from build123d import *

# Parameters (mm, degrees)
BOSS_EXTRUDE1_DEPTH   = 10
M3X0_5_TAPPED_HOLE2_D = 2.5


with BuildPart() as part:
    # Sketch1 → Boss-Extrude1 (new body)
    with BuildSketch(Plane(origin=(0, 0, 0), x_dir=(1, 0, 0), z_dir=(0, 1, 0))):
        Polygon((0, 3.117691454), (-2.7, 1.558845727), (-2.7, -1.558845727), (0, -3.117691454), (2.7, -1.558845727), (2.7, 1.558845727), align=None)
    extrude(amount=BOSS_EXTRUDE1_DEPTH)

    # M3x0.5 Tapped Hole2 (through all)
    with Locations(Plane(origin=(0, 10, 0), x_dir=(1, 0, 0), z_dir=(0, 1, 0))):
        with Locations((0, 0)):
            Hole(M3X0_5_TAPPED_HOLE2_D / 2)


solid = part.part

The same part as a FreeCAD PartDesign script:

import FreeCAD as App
import Part
import Sketcher
Q = App.Units.Quantity


def add_polygon(sketch, points):
    """Adds a closed chain of lines whose ends are joined by coincident constraints."""
    first, n = sketch.GeometryCount, len(points)
    for a, b in zip(points, points[1:] + points[:1]):
        sketch.addGeometry(Part.LineSegment(App.Vector(*a, 0), App.Vector(*b, 0)), False)
    for i in range(n):
        sketch.addConstraint(Sketcher.Constraint("Coincident", first + i, 2, first + (i + 1) % n, 1))

doc = App.newDocument("Part")
body = doc.addObject("PartDesign::Body", "Body")

# Sketch on XZ plane
sketch1 = body.newObject("Sketcher::SketchObject", "Sketch")
sketch1.AttachmentSupport = (doc.getObject("XZ_Plane"), [""])
sketch1.MapMode = "FlatFace"
add_polygon(sketch1, [(0, -3.1), (-2.7, -1.6), (-2.7, 1.6), (0, 3.1), (2.7, 1.6), (2.7, -1.6)])  # lines 0-5
sketch1.addConstraint([
    Sketcher.Constraint("Vertical", 1),
    Sketcher.Constraint("Vertical", 4),
    Sketcher.Constraint("Symmetric", 0, 2, 3, 2, -1, 1),
    Sketcher.Constraint("Symmetric", 2, 2, 5, 2, -1, 1),
    Sketcher.Constraint("PointOnObject", 2, 2, -2),
    Sketcher.Constraint("Parallel", 2, 5),
    Sketcher.Constraint("Horizontal", 1, 2, 3, 2),
    Sketcher.Constraint("Angle", 0, Q("150 deg")),
    Sketcher.Constraint("DistanceX", 0, 2, -1, 1, 2.7),
    Sketcher.Constraint("DistanceY", 1, 1, 1, 2, 3.117691),
])
pad1 = body.newObject("PartDesign::Pad", "Pad")
pad1.Profile = sketch1
pad1.Length = 10
pad1.Reversed = True

# Sketch on XZ plane
sketch2 = body.newObject("Sketcher::SketchObject", "Sketch001")
sketch2.AttachmentSupport = (doc.getObject("XZ_Plane"), [""])
sketch2.MapMode = "FlatFace"
sketch2.AttachmentOffset = App.Placement(App.Vector(0, 0, -10), App.Rotation())
sketch2.addGeometry(Part.Circle(App.Vector(0, 0, 0), App.Vector(0, 0, 1), 1.2), False)
sketch2.addConstraint([
    Sketcher.Constraint("Coincident", 0, 3, -1, 1),
    Sketcher.Constraint("Diameter", 0, 2.5),
])
doc.recompute()
hole = body.newObject("PartDesign::Hole", "Hole")
hole.Profile = sketch2
hole.ThreadType = "None"
hole.Diameter = 2.5
hole.DepthType = "ThroughAll"
hole.Reversed = True

doc.recompute()
